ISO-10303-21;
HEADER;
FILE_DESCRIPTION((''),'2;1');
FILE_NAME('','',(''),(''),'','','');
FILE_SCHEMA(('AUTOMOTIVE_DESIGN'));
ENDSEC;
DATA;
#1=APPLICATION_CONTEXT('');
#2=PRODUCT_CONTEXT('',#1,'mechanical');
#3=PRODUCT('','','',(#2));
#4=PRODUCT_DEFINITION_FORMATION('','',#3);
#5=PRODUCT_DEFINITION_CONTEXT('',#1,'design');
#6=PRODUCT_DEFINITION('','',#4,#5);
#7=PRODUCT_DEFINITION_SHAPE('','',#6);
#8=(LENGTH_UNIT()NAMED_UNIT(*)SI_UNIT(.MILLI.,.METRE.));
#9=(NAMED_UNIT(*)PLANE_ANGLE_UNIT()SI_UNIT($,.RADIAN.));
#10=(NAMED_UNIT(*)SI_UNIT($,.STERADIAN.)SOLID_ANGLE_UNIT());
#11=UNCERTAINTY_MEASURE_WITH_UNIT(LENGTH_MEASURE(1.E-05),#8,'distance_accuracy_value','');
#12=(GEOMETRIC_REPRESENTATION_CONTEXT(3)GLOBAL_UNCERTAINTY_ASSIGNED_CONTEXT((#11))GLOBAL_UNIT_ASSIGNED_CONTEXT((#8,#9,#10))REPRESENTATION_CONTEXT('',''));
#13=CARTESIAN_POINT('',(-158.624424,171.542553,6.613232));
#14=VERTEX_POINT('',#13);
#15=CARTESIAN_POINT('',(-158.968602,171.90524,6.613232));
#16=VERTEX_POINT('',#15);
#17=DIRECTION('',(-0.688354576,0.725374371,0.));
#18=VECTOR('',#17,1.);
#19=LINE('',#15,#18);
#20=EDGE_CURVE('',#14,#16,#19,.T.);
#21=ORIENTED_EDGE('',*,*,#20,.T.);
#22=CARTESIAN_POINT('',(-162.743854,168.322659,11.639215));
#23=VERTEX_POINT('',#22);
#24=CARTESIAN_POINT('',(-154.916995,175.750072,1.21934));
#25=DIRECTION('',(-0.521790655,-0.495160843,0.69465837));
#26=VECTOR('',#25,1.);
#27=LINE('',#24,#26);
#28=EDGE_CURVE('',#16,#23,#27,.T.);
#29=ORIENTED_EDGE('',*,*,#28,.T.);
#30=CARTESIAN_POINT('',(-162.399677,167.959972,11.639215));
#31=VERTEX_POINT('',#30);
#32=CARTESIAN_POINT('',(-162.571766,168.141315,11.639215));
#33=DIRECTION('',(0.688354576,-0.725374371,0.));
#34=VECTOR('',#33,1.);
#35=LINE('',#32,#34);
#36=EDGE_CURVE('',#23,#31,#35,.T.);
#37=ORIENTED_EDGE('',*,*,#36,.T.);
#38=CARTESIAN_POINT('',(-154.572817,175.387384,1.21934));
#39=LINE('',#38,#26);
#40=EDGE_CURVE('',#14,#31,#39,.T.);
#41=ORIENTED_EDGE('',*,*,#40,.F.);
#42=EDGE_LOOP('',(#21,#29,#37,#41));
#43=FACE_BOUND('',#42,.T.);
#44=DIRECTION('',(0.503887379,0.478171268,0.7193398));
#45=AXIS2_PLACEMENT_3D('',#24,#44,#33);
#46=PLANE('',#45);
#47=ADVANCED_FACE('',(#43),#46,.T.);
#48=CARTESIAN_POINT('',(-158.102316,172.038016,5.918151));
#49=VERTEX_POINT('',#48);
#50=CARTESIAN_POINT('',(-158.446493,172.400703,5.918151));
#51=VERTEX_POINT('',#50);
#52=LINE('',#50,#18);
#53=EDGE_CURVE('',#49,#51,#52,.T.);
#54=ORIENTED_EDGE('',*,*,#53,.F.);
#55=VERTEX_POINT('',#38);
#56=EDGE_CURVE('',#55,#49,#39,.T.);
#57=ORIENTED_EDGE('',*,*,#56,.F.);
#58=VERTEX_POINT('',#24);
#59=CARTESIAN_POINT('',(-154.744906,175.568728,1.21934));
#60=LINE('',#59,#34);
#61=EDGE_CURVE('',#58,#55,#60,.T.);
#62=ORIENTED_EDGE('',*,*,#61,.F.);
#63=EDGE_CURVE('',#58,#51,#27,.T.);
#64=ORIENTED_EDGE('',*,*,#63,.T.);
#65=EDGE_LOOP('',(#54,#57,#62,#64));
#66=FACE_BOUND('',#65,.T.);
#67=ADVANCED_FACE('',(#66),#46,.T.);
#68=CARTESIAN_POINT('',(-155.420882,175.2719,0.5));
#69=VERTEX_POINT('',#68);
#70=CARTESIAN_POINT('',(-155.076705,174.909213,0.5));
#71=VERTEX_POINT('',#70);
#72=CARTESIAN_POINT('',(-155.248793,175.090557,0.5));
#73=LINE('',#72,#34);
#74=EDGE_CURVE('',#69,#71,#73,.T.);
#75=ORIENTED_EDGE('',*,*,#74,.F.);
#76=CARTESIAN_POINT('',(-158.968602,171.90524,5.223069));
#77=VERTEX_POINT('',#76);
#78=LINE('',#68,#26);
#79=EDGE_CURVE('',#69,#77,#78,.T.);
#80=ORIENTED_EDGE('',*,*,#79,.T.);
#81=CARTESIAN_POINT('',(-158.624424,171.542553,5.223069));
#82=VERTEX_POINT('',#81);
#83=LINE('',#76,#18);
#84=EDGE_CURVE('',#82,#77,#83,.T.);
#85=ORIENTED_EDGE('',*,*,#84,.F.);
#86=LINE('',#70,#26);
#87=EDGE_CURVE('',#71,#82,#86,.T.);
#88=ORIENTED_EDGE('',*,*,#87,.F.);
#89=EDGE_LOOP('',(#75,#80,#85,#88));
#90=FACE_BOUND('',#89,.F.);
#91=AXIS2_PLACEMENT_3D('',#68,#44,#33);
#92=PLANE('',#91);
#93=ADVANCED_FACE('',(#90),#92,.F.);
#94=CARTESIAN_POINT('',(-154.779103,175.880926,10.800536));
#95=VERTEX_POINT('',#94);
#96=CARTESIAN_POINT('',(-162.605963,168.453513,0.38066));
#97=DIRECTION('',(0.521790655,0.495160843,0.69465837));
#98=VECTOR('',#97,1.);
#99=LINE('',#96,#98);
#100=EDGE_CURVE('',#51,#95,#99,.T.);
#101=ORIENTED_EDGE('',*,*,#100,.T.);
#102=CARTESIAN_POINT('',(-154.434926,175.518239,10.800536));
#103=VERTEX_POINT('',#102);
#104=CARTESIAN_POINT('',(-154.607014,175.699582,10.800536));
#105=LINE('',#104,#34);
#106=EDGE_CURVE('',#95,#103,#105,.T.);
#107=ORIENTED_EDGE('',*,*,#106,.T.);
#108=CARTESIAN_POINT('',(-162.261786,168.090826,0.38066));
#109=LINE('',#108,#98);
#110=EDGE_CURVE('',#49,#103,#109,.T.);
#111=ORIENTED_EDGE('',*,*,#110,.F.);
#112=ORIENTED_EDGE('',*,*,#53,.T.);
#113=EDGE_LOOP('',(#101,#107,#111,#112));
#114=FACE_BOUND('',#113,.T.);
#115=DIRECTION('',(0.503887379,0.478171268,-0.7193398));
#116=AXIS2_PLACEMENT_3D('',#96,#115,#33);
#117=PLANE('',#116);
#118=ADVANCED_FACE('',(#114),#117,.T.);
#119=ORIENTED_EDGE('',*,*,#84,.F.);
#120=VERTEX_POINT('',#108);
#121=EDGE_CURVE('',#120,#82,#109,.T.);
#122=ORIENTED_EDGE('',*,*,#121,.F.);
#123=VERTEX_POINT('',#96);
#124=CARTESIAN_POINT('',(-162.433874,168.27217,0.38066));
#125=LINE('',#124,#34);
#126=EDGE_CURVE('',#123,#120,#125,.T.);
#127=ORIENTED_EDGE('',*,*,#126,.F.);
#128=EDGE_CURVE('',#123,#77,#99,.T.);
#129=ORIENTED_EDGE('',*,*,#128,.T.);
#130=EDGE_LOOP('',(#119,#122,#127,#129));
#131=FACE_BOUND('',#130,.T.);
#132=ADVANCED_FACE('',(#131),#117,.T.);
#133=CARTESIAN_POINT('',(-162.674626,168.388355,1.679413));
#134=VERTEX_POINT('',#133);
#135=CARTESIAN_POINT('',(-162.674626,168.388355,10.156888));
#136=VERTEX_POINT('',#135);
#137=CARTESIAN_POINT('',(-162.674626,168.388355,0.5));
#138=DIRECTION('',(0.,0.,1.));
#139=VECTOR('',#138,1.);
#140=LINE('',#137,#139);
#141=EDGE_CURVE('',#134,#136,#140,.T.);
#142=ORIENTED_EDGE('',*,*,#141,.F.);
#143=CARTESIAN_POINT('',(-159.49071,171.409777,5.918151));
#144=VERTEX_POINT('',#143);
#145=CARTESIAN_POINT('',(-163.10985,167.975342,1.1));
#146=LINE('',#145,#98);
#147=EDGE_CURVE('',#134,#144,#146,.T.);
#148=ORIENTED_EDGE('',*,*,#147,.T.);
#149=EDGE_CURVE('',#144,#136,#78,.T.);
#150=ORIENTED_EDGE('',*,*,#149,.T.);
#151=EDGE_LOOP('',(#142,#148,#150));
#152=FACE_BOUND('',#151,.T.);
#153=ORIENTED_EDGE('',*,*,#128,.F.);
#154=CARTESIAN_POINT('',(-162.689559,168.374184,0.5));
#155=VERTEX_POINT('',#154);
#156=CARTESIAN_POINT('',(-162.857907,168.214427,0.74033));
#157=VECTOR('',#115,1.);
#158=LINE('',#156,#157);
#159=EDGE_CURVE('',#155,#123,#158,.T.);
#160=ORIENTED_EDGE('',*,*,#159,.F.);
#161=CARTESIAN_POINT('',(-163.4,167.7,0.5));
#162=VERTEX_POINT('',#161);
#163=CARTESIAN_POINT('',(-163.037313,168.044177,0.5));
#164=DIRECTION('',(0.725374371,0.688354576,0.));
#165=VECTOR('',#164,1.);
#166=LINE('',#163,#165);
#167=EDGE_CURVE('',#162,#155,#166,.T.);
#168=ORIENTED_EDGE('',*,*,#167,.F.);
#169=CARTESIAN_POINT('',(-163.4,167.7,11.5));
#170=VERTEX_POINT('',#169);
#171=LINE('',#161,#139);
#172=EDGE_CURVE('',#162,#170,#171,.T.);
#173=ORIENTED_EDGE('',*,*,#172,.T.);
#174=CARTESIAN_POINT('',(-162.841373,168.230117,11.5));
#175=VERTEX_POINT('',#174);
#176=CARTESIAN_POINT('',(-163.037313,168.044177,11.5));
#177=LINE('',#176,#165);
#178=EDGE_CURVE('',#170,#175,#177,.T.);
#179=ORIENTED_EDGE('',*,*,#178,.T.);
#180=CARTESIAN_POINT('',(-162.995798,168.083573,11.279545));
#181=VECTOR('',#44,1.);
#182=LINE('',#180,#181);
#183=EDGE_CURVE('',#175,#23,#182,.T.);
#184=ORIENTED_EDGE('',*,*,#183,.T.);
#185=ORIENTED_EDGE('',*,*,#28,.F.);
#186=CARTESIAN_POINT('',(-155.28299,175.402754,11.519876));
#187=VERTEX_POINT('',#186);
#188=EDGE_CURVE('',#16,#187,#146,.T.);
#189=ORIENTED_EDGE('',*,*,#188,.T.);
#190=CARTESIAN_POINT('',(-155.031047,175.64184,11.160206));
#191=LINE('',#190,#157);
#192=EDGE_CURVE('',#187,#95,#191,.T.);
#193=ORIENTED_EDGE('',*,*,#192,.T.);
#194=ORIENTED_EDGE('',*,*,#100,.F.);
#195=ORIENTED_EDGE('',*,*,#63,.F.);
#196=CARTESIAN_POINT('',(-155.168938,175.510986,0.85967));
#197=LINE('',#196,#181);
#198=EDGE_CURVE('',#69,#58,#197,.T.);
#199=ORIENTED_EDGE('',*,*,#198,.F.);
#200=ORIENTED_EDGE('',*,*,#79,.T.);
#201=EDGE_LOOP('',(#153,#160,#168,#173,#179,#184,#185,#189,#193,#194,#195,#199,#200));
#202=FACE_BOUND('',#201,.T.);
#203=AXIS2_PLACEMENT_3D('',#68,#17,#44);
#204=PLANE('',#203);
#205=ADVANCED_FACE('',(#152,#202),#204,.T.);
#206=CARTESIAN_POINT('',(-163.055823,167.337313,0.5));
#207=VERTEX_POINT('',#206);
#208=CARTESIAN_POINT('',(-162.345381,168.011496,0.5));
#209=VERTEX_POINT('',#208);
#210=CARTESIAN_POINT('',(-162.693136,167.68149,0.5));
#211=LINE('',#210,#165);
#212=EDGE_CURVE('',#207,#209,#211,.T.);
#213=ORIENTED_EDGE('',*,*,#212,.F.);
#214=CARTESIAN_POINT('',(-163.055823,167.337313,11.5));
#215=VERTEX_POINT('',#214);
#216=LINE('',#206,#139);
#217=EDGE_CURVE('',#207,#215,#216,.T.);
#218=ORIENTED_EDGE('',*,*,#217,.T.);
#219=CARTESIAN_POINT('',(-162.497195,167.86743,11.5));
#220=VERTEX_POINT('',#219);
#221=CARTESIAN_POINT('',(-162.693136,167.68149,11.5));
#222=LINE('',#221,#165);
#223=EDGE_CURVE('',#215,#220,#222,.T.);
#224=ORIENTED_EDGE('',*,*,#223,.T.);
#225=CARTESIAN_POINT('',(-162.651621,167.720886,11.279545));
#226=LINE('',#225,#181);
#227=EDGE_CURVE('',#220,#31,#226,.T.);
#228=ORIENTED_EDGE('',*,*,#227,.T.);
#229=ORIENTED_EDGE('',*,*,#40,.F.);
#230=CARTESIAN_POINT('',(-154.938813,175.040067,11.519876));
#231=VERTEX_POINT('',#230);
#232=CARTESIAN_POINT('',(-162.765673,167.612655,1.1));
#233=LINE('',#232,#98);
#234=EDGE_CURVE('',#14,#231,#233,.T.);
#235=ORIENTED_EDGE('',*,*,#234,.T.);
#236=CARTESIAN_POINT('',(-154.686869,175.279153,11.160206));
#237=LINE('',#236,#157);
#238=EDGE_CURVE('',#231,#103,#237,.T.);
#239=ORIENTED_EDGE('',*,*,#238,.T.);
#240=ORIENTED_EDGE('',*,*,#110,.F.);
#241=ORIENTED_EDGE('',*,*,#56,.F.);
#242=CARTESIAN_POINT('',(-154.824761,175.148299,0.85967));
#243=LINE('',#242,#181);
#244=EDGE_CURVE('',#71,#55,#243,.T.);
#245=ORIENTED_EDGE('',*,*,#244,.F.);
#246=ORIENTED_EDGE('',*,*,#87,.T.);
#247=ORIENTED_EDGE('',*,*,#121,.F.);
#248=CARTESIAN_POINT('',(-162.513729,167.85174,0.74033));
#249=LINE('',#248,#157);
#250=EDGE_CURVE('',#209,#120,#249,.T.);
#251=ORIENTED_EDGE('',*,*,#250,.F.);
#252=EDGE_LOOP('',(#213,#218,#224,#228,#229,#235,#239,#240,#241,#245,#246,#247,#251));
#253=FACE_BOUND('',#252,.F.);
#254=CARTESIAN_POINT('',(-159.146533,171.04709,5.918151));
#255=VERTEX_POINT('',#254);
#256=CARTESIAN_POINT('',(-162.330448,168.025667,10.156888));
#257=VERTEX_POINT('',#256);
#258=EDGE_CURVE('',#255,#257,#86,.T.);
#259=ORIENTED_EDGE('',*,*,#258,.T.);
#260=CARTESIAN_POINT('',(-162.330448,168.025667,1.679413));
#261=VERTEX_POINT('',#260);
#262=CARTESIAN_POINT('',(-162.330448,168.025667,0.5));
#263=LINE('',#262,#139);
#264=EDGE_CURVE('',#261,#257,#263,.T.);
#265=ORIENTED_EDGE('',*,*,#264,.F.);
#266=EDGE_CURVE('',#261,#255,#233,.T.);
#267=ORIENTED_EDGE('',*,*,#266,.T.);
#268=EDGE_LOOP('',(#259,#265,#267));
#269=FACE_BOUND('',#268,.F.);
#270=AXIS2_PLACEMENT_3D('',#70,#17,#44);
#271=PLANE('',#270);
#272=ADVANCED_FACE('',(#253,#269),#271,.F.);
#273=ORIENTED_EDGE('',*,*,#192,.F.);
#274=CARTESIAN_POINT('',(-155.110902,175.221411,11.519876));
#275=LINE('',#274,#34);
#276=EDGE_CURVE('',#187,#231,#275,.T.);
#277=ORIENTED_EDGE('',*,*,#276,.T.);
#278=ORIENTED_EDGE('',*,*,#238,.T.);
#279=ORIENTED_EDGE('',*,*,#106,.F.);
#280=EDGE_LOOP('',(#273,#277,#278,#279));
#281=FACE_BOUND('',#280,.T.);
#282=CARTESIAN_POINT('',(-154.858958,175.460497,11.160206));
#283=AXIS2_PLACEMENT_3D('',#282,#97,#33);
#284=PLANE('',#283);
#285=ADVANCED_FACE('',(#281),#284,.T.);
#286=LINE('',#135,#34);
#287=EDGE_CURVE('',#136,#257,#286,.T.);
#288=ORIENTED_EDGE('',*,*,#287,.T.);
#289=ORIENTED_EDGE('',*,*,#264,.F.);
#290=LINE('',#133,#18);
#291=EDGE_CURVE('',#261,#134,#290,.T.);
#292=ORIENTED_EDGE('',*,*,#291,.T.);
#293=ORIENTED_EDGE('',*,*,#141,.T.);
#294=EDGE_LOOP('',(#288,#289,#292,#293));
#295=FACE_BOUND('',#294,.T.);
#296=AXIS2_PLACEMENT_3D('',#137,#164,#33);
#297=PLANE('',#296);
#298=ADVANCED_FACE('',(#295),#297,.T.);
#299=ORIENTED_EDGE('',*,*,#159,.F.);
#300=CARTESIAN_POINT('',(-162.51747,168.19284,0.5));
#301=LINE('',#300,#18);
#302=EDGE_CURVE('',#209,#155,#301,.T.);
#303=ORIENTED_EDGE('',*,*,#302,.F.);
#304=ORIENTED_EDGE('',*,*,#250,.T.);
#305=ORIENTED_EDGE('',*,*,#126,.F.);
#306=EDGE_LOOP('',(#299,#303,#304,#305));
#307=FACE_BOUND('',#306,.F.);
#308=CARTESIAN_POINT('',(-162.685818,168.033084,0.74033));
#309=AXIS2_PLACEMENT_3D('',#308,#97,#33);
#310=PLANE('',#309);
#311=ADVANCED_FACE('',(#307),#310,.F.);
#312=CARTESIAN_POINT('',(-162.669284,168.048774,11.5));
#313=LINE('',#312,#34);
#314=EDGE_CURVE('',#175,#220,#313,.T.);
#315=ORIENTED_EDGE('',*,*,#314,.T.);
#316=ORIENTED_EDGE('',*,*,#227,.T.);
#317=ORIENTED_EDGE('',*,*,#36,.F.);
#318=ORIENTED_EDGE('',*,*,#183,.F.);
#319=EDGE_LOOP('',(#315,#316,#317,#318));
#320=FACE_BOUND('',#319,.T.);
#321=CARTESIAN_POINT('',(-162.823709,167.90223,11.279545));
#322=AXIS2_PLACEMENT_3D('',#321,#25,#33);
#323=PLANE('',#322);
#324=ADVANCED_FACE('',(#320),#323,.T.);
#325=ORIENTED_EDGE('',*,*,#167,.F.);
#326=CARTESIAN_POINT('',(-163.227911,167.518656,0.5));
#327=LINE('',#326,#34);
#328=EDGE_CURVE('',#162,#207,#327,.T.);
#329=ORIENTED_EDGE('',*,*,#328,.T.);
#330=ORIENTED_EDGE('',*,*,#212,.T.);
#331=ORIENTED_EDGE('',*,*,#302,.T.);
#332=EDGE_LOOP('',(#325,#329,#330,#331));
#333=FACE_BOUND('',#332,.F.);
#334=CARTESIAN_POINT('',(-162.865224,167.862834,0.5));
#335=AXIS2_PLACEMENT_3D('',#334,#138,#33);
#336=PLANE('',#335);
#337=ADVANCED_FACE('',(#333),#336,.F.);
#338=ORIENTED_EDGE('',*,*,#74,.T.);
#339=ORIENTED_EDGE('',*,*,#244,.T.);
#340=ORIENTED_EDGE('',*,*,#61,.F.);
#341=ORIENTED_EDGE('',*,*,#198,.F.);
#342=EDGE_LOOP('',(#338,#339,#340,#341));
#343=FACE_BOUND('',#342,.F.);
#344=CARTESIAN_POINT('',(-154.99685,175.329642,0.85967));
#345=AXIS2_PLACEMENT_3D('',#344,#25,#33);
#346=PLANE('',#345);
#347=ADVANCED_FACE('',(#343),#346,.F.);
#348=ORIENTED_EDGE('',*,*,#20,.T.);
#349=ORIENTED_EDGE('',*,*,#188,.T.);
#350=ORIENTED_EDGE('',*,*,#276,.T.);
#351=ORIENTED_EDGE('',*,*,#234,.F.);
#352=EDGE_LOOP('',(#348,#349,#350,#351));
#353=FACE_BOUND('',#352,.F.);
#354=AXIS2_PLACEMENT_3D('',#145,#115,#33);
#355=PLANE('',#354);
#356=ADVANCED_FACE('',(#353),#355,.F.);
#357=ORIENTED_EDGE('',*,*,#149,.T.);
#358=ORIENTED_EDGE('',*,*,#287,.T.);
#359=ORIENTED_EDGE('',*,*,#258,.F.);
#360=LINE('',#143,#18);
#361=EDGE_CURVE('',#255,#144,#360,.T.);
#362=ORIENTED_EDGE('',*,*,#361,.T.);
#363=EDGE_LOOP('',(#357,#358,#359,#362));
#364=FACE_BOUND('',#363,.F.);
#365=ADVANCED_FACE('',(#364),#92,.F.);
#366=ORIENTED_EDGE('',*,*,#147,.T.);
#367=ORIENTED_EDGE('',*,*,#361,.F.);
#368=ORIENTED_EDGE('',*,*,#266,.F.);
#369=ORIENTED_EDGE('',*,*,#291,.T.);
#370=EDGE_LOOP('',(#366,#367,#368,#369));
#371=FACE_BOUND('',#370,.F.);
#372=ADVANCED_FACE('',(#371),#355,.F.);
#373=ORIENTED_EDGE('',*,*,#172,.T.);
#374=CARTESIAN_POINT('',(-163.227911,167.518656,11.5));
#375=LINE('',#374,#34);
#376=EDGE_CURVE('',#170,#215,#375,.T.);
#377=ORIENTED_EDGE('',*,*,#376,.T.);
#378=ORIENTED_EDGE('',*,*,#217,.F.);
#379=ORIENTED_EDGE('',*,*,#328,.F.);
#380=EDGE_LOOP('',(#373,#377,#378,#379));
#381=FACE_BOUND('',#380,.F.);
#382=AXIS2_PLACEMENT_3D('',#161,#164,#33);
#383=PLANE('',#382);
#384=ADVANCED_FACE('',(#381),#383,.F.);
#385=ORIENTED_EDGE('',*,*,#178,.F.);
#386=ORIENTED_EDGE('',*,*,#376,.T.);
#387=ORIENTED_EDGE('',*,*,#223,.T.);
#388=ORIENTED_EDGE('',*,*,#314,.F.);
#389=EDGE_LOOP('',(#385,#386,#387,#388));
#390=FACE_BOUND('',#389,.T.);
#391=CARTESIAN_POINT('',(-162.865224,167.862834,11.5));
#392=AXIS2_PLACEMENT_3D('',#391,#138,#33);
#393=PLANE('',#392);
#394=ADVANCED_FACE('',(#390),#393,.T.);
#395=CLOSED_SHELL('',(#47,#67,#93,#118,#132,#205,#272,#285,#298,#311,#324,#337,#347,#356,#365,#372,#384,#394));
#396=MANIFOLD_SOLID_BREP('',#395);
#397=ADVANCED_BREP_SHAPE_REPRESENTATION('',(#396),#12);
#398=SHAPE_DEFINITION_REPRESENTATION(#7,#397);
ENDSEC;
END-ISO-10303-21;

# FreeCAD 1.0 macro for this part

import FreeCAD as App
import Part
import Sketcher
from FreeCAD import Vector
Q = App.Units.Quantity

doc = App.newDocument("Part")
body = doc.addObject("PartDesign::Body", "Body")

# Sketch on XY plane
sketch1 = doc.addObject("Sketcher::SketchObject", "Sketch")
body.addObject(sketch1)
sketch1.AttachmentSupport = (doc.XY_Plane, [""])
sketch1.MapMode = "FlatFace"
sketch1.addGeometry(Part.LineSegment(Vector(0, 1, 0), Vector(0, 0, 0)), False)
sketch1.addGeometry(Part.LineSegment(Vector(0, 0, 0), Vector(0.5, 0, 0)), False)
sketch1.addGeometry(Part.LineSegment(Vector(0.5, 0, 0), Vector(0.5, 1, 0)), False)
sketch1.addGeometry(Part.LineSegment(Vector(0.5, 1, 0), Vector(0, 1, 0)), False)
sketch1.addConstraint(Sketcher.Constraint("Coincident", 0, 2, 1, 1))
sketch1.addConstraint(Sketcher.Constraint("Coincident", 1, 2, 2, 1))
sketch1.addConstraint(Sketcher.Constraint("Coincident", 2, 2, 3, 1))
sketch1.addConstraint(Sketcher.Constraint("Coincident", 3, 2, 0, 1))
sketch1.addConstraint(Sketcher.Constraint("Vertical", 0))
sketch1.addConstraint(Sketcher.Constraint("Horizontal", 1))
sketch1.addConstraint(Sketcher.Constraint("Vertical", 2))
sketch1.addConstraint(Sketcher.Constraint("Horizontal", 3))
sketch1.addConstraint(Sketcher.Constraint("Coincident", 0, 2, -1, 1))
sketch1.addConstraint(Sketcher.Constraint("DistanceY", 0, 2, 0, 1, Q("1 mm")))
sketch1.addConstraint(Sketcher.Constraint("DistanceX", 1, 1, 1, 2, Q("0.5 mm")))
pad1 = doc.addObject("PartDesign::Pad", "Pad")
body.addObject(pad1)
pad1.Profile = sketch1
pad1.Length = 15
body2 = doc.addObject("PartDesign::Body", "Body001")
doc.recompute()

body.Placement = App.Placement(Vector(0, 0, 0), App.Rotation(Vector(1, 0, 0), 46))
boolean = doc.addObject("PartDesign::Boolean", "Boolean")
body2.addObject(boolean)
boolean.Type = "Fuse"
boolean.addObjects([body])
body3 = doc.addObject("PartDesign::Body", "Body002")
doc.recompute()

body2.Placement = App.Placement(Vector(0, 11, 0.5), App.Rotation(Vector(0, 0, 1), 0))
boolean2 = doc.addObject("PartDesign::Boolean", "Boolean001")
body3.addObject(boolean2)
boolean2.Type = "Fuse"
boolean2.addObjects([body2])
body4 = doc.addObject("PartDesign::Body", "Body003")

# Sketch on XY plane
sketch2 = doc.addObject("Sketcher::SketchObject", "Sketch001")
body4.addObject(sketch2)
sketch2.AttachmentSupport = (doc.getObject("XY_Plane003"), [""])
sketch2.MapMode = "FlatFace"
sketch2.addGeometry(Part.LineSegment(Vector(0, 1, 0), Vector(0, 0, 0)), False)
sketch2.addGeometry(Part.LineSegment(Vector(0, 0, 0), Vector(0.5, 0, 0)), False)
sketch2.addGeometry(Part.LineSegment(Vector(0.5, 0, 0), Vector(0.5, 1, 0)), False)
sketch2.addGeometry(Part.LineSegment(Vector(0.5, 1, 0), Vector(0, 1, 0)), False)
sketch2.addConstraint(Sketcher.Constraint("Coincident", 0, 2, 1, 1))
sketch2.addConstraint(Sketcher.Constraint("Coincident", 1, 2, 2, 1))
sketch2.addConstraint(Sketcher.Constraint("Coincident", 2, 2, 3, 1))
sketch2.addConstraint(Sketcher.Constraint("Coincident", 3, 2, 0, 1))
sketch2.addConstraint(Sketcher.Constraint("Vertical", 0))
sketch2.addConstraint(Sketcher.Constraint("Horizontal", 1))
sketch2.addConstraint(Sketcher.Constraint("Vertical", 2))
sketch2.addConstraint(Sketcher.Constraint("Horizontal", 3))
sketch2.addConstraint(Sketcher.Constraint("Coincident", 0, 2, -1, 1))
sketch2.addConstraint(Sketcher.Constraint("DistanceY", 0, 2, 0, 1, Q("1 mm")))
sketch2.addConstraint(Sketcher.Constraint("DistanceX", 1, 1, 1, 2, Q("0.5 mm")))
pad2 = doc.addObject("PartDesign::Pad", "Pad001")
body4.addObject(pad2)
pad2.Profile = sketch2
pad2.Length = 15
body5 = doc.addObject("PartDesign::Body", "Body004")
doc.recompute()

body4.Placement = App.Placement(Vector(0, 0, 0), App.Rotation(Vector(1, 0, 0), 314))
boolean3 = doc.addObject("PartDesign::Boolean", "Boolean002")
body5.addObject(boolean3)
boolean3.Type = "Fuse"
boolean3.addObjects([body4])
body6 = doc.addObject("PartDesign::Body", "Body005")
doc.recompute()

body5.Placement = App.Placement(Vector(0, 0.4, 1.1), App.Rotation(Vector(0, 0, 1), 0))
boolean4 = doc.addObject("PartDesign::Boolean", "Boolean003")
body6.addObject(boolean4)
boolean4.Type = "Fuse"
boolean4.addObjects([body5])
body7 = doc.addObject("PartDesign::Body", "Body006")

# Sketch on XY plane
sketch3 = doc.addObject("Sketcher::SketchObject", "Sketch002")
body7.addObject(sketch3)
sketch3.AttachmentSupport = (doc.getObject("XY_Plane006"), [""])
sketch3.MapMode = "FlatFace"
sketch3.AttachmentOffset = App.Placement(Vector(0, 0, 0.5), App.Rotation())
sketch3.addGeometry(Part.LineSegment(Vector(0, 1, 0), Vector(0, 0, 0)), False)
sketch3.addGeometry(Part.LineSegment(Vector(0, 0, 0), Vector(0.5, 0, 0)), False)
sketch3.addGeometry(Part.LineSegment(Vector(0.5, 0, 0), Vector(0.5, 1, 0)), False)
sketch3.addGeometry(Part.LineSegment(Vector(0.5, 1, 0), Vector(0, 1, 0)), False)
sketch3.addConstraint(Sketcher.Constraint("Coincident", 0, 2, 1, 1))
sketch3.addConstraint(Sketcher.Constraint("Coincident", 1, 2, 2, 1))
sketch3.addConstraint(Sketcher.Constraint("Coincident", 2, 2, 3, 1))
sketch3.addConstraint(Sketcher.Constraint("Coincident", 3, 2, 0, 1))
sketch3.addConstraint(Sketcher.Constraint("Vertical", 0))
sketch3.addConstraint(Sketcher.Constraint("Horizontal", 1))
sketch3.addConstraint(Sketcher.Constraint("Vertical", 2))
sketch3.addConstraint(Sketcher.Constraint("Horizontal", 3))
sketch3.addConstraint(Sketcher.Constraint("Coincident", 0, 2, -1, 1))
sketch3.addConstraint(Sketcher.Constraint("DistanceY", 0, 2, 0, 1, Q("1 mm")))
sketch3.addConstraint(Sketcher.Constraint("DistanceX", 1, 1, 1, 2, Q("0.5 mm")))
pad3 = doc.addObject("PartDesign::Pad", "Pad002")
body7.addObject(pad3)
pad3.Profile = sketch3
pad3.Length = 11
doc.recompute()

boolean5 = doc.addObject("PartDesign::Boolean", "Boolean004")
body7.addObject(boolean5)
boolean5.Type = "Fuse"
boolean5.addObjects([body3])
doc.recompute()

boolean6 = doc.addObject("PartDesign::Boolean", "Boolean005")
body7.addObject(boolean6)
boolean6.Type = "Fuse"
boolean6.addObjects([body6])
body8 = doc.addObject("PartDesign::Body", "Body007")
doc.recompute()

body7.Placement = App.Placement(Vector(-163.4, 167.7, 0), App.Rotation(Vector(0, 0, -1), 46.5))
boolean7 = doc.addObject("PartDesign::Boolean", "Boolean006")
body8.addObject(boolean7)
boolean7.Type = "Fuse"
boolean7.addObjects([body7])

doc.recompute()
